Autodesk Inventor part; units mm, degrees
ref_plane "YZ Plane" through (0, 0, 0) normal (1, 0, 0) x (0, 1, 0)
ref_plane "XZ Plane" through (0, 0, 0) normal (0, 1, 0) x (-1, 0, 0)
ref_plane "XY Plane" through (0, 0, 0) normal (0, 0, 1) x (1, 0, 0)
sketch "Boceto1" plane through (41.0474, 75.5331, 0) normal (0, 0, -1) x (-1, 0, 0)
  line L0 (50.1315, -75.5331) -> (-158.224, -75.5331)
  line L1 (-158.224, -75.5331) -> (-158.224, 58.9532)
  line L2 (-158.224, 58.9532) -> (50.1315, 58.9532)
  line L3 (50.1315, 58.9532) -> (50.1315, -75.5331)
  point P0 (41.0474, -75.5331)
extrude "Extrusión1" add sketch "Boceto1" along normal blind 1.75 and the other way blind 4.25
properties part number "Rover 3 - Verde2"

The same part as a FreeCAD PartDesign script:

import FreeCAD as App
import Part
import Sketcher
from FreeCAD import Vector


def add_polygon(sketch, points):
    """Adds a closed chain of lines whose ends are joined by coincident constraints."""
    first, n = sketch.GeometryCount, len(points)
    for a, b in zip(points, points[1:] + points[:1]):
        sketch.addGeometry(Part.LineSegment(App.Vector(*a, 0), App.Vector(*b, 0)), False)
    for i in range(n):
        sketch.addConstraint(Sketcher.Constraint("Coincident", first + i, 2, first + (i + 1) % n, 1))

doc = App.newDocument("Part")
body = doc.addObject("PartDesign::Body", "Body")

sketch1 = body.newObject("Sketcher::SketchObject", "Sketch")
sketch1.AttachmentSupport = (doc.getObject("XY_Plane"), [""])
sketch1.MapMode = "FlatFace"
add_polygon(sketch1, [(199, 0), (-9, 0), (-9, 134), (199, 134)])
sketch1.addConstraint([
    Sketcher.Constraint("Horizontal", 0),
    Sketcher.Constraint("Vertical", 1),
    Sketcher.Constraint("Horizontal", 2),
    Sketcher.Constraint("Vertical", 3),
    Sketcher.Constraint("PointOnObject", 0, 2, -1),
    Sketcher.Constraint("DistanceX", 0, 2, 0, 1, 208.3555),
    Sketcher.Constraint("DistanceY", 1, 1, 1, 2, 134.4863),
    Sketcher.Constraint("DistanceX", 0, 2, -1, 1, 9.084),
])
pad1 = body.newObject("PartDesign::Pad", "Pad")
pad1.Profile = sketch1
pad1.Type = "TwoLengths"
pad1.Length = 1.75
pad1.Length2 = 4.25
pad1.Reversed = True

doc.recompute()
